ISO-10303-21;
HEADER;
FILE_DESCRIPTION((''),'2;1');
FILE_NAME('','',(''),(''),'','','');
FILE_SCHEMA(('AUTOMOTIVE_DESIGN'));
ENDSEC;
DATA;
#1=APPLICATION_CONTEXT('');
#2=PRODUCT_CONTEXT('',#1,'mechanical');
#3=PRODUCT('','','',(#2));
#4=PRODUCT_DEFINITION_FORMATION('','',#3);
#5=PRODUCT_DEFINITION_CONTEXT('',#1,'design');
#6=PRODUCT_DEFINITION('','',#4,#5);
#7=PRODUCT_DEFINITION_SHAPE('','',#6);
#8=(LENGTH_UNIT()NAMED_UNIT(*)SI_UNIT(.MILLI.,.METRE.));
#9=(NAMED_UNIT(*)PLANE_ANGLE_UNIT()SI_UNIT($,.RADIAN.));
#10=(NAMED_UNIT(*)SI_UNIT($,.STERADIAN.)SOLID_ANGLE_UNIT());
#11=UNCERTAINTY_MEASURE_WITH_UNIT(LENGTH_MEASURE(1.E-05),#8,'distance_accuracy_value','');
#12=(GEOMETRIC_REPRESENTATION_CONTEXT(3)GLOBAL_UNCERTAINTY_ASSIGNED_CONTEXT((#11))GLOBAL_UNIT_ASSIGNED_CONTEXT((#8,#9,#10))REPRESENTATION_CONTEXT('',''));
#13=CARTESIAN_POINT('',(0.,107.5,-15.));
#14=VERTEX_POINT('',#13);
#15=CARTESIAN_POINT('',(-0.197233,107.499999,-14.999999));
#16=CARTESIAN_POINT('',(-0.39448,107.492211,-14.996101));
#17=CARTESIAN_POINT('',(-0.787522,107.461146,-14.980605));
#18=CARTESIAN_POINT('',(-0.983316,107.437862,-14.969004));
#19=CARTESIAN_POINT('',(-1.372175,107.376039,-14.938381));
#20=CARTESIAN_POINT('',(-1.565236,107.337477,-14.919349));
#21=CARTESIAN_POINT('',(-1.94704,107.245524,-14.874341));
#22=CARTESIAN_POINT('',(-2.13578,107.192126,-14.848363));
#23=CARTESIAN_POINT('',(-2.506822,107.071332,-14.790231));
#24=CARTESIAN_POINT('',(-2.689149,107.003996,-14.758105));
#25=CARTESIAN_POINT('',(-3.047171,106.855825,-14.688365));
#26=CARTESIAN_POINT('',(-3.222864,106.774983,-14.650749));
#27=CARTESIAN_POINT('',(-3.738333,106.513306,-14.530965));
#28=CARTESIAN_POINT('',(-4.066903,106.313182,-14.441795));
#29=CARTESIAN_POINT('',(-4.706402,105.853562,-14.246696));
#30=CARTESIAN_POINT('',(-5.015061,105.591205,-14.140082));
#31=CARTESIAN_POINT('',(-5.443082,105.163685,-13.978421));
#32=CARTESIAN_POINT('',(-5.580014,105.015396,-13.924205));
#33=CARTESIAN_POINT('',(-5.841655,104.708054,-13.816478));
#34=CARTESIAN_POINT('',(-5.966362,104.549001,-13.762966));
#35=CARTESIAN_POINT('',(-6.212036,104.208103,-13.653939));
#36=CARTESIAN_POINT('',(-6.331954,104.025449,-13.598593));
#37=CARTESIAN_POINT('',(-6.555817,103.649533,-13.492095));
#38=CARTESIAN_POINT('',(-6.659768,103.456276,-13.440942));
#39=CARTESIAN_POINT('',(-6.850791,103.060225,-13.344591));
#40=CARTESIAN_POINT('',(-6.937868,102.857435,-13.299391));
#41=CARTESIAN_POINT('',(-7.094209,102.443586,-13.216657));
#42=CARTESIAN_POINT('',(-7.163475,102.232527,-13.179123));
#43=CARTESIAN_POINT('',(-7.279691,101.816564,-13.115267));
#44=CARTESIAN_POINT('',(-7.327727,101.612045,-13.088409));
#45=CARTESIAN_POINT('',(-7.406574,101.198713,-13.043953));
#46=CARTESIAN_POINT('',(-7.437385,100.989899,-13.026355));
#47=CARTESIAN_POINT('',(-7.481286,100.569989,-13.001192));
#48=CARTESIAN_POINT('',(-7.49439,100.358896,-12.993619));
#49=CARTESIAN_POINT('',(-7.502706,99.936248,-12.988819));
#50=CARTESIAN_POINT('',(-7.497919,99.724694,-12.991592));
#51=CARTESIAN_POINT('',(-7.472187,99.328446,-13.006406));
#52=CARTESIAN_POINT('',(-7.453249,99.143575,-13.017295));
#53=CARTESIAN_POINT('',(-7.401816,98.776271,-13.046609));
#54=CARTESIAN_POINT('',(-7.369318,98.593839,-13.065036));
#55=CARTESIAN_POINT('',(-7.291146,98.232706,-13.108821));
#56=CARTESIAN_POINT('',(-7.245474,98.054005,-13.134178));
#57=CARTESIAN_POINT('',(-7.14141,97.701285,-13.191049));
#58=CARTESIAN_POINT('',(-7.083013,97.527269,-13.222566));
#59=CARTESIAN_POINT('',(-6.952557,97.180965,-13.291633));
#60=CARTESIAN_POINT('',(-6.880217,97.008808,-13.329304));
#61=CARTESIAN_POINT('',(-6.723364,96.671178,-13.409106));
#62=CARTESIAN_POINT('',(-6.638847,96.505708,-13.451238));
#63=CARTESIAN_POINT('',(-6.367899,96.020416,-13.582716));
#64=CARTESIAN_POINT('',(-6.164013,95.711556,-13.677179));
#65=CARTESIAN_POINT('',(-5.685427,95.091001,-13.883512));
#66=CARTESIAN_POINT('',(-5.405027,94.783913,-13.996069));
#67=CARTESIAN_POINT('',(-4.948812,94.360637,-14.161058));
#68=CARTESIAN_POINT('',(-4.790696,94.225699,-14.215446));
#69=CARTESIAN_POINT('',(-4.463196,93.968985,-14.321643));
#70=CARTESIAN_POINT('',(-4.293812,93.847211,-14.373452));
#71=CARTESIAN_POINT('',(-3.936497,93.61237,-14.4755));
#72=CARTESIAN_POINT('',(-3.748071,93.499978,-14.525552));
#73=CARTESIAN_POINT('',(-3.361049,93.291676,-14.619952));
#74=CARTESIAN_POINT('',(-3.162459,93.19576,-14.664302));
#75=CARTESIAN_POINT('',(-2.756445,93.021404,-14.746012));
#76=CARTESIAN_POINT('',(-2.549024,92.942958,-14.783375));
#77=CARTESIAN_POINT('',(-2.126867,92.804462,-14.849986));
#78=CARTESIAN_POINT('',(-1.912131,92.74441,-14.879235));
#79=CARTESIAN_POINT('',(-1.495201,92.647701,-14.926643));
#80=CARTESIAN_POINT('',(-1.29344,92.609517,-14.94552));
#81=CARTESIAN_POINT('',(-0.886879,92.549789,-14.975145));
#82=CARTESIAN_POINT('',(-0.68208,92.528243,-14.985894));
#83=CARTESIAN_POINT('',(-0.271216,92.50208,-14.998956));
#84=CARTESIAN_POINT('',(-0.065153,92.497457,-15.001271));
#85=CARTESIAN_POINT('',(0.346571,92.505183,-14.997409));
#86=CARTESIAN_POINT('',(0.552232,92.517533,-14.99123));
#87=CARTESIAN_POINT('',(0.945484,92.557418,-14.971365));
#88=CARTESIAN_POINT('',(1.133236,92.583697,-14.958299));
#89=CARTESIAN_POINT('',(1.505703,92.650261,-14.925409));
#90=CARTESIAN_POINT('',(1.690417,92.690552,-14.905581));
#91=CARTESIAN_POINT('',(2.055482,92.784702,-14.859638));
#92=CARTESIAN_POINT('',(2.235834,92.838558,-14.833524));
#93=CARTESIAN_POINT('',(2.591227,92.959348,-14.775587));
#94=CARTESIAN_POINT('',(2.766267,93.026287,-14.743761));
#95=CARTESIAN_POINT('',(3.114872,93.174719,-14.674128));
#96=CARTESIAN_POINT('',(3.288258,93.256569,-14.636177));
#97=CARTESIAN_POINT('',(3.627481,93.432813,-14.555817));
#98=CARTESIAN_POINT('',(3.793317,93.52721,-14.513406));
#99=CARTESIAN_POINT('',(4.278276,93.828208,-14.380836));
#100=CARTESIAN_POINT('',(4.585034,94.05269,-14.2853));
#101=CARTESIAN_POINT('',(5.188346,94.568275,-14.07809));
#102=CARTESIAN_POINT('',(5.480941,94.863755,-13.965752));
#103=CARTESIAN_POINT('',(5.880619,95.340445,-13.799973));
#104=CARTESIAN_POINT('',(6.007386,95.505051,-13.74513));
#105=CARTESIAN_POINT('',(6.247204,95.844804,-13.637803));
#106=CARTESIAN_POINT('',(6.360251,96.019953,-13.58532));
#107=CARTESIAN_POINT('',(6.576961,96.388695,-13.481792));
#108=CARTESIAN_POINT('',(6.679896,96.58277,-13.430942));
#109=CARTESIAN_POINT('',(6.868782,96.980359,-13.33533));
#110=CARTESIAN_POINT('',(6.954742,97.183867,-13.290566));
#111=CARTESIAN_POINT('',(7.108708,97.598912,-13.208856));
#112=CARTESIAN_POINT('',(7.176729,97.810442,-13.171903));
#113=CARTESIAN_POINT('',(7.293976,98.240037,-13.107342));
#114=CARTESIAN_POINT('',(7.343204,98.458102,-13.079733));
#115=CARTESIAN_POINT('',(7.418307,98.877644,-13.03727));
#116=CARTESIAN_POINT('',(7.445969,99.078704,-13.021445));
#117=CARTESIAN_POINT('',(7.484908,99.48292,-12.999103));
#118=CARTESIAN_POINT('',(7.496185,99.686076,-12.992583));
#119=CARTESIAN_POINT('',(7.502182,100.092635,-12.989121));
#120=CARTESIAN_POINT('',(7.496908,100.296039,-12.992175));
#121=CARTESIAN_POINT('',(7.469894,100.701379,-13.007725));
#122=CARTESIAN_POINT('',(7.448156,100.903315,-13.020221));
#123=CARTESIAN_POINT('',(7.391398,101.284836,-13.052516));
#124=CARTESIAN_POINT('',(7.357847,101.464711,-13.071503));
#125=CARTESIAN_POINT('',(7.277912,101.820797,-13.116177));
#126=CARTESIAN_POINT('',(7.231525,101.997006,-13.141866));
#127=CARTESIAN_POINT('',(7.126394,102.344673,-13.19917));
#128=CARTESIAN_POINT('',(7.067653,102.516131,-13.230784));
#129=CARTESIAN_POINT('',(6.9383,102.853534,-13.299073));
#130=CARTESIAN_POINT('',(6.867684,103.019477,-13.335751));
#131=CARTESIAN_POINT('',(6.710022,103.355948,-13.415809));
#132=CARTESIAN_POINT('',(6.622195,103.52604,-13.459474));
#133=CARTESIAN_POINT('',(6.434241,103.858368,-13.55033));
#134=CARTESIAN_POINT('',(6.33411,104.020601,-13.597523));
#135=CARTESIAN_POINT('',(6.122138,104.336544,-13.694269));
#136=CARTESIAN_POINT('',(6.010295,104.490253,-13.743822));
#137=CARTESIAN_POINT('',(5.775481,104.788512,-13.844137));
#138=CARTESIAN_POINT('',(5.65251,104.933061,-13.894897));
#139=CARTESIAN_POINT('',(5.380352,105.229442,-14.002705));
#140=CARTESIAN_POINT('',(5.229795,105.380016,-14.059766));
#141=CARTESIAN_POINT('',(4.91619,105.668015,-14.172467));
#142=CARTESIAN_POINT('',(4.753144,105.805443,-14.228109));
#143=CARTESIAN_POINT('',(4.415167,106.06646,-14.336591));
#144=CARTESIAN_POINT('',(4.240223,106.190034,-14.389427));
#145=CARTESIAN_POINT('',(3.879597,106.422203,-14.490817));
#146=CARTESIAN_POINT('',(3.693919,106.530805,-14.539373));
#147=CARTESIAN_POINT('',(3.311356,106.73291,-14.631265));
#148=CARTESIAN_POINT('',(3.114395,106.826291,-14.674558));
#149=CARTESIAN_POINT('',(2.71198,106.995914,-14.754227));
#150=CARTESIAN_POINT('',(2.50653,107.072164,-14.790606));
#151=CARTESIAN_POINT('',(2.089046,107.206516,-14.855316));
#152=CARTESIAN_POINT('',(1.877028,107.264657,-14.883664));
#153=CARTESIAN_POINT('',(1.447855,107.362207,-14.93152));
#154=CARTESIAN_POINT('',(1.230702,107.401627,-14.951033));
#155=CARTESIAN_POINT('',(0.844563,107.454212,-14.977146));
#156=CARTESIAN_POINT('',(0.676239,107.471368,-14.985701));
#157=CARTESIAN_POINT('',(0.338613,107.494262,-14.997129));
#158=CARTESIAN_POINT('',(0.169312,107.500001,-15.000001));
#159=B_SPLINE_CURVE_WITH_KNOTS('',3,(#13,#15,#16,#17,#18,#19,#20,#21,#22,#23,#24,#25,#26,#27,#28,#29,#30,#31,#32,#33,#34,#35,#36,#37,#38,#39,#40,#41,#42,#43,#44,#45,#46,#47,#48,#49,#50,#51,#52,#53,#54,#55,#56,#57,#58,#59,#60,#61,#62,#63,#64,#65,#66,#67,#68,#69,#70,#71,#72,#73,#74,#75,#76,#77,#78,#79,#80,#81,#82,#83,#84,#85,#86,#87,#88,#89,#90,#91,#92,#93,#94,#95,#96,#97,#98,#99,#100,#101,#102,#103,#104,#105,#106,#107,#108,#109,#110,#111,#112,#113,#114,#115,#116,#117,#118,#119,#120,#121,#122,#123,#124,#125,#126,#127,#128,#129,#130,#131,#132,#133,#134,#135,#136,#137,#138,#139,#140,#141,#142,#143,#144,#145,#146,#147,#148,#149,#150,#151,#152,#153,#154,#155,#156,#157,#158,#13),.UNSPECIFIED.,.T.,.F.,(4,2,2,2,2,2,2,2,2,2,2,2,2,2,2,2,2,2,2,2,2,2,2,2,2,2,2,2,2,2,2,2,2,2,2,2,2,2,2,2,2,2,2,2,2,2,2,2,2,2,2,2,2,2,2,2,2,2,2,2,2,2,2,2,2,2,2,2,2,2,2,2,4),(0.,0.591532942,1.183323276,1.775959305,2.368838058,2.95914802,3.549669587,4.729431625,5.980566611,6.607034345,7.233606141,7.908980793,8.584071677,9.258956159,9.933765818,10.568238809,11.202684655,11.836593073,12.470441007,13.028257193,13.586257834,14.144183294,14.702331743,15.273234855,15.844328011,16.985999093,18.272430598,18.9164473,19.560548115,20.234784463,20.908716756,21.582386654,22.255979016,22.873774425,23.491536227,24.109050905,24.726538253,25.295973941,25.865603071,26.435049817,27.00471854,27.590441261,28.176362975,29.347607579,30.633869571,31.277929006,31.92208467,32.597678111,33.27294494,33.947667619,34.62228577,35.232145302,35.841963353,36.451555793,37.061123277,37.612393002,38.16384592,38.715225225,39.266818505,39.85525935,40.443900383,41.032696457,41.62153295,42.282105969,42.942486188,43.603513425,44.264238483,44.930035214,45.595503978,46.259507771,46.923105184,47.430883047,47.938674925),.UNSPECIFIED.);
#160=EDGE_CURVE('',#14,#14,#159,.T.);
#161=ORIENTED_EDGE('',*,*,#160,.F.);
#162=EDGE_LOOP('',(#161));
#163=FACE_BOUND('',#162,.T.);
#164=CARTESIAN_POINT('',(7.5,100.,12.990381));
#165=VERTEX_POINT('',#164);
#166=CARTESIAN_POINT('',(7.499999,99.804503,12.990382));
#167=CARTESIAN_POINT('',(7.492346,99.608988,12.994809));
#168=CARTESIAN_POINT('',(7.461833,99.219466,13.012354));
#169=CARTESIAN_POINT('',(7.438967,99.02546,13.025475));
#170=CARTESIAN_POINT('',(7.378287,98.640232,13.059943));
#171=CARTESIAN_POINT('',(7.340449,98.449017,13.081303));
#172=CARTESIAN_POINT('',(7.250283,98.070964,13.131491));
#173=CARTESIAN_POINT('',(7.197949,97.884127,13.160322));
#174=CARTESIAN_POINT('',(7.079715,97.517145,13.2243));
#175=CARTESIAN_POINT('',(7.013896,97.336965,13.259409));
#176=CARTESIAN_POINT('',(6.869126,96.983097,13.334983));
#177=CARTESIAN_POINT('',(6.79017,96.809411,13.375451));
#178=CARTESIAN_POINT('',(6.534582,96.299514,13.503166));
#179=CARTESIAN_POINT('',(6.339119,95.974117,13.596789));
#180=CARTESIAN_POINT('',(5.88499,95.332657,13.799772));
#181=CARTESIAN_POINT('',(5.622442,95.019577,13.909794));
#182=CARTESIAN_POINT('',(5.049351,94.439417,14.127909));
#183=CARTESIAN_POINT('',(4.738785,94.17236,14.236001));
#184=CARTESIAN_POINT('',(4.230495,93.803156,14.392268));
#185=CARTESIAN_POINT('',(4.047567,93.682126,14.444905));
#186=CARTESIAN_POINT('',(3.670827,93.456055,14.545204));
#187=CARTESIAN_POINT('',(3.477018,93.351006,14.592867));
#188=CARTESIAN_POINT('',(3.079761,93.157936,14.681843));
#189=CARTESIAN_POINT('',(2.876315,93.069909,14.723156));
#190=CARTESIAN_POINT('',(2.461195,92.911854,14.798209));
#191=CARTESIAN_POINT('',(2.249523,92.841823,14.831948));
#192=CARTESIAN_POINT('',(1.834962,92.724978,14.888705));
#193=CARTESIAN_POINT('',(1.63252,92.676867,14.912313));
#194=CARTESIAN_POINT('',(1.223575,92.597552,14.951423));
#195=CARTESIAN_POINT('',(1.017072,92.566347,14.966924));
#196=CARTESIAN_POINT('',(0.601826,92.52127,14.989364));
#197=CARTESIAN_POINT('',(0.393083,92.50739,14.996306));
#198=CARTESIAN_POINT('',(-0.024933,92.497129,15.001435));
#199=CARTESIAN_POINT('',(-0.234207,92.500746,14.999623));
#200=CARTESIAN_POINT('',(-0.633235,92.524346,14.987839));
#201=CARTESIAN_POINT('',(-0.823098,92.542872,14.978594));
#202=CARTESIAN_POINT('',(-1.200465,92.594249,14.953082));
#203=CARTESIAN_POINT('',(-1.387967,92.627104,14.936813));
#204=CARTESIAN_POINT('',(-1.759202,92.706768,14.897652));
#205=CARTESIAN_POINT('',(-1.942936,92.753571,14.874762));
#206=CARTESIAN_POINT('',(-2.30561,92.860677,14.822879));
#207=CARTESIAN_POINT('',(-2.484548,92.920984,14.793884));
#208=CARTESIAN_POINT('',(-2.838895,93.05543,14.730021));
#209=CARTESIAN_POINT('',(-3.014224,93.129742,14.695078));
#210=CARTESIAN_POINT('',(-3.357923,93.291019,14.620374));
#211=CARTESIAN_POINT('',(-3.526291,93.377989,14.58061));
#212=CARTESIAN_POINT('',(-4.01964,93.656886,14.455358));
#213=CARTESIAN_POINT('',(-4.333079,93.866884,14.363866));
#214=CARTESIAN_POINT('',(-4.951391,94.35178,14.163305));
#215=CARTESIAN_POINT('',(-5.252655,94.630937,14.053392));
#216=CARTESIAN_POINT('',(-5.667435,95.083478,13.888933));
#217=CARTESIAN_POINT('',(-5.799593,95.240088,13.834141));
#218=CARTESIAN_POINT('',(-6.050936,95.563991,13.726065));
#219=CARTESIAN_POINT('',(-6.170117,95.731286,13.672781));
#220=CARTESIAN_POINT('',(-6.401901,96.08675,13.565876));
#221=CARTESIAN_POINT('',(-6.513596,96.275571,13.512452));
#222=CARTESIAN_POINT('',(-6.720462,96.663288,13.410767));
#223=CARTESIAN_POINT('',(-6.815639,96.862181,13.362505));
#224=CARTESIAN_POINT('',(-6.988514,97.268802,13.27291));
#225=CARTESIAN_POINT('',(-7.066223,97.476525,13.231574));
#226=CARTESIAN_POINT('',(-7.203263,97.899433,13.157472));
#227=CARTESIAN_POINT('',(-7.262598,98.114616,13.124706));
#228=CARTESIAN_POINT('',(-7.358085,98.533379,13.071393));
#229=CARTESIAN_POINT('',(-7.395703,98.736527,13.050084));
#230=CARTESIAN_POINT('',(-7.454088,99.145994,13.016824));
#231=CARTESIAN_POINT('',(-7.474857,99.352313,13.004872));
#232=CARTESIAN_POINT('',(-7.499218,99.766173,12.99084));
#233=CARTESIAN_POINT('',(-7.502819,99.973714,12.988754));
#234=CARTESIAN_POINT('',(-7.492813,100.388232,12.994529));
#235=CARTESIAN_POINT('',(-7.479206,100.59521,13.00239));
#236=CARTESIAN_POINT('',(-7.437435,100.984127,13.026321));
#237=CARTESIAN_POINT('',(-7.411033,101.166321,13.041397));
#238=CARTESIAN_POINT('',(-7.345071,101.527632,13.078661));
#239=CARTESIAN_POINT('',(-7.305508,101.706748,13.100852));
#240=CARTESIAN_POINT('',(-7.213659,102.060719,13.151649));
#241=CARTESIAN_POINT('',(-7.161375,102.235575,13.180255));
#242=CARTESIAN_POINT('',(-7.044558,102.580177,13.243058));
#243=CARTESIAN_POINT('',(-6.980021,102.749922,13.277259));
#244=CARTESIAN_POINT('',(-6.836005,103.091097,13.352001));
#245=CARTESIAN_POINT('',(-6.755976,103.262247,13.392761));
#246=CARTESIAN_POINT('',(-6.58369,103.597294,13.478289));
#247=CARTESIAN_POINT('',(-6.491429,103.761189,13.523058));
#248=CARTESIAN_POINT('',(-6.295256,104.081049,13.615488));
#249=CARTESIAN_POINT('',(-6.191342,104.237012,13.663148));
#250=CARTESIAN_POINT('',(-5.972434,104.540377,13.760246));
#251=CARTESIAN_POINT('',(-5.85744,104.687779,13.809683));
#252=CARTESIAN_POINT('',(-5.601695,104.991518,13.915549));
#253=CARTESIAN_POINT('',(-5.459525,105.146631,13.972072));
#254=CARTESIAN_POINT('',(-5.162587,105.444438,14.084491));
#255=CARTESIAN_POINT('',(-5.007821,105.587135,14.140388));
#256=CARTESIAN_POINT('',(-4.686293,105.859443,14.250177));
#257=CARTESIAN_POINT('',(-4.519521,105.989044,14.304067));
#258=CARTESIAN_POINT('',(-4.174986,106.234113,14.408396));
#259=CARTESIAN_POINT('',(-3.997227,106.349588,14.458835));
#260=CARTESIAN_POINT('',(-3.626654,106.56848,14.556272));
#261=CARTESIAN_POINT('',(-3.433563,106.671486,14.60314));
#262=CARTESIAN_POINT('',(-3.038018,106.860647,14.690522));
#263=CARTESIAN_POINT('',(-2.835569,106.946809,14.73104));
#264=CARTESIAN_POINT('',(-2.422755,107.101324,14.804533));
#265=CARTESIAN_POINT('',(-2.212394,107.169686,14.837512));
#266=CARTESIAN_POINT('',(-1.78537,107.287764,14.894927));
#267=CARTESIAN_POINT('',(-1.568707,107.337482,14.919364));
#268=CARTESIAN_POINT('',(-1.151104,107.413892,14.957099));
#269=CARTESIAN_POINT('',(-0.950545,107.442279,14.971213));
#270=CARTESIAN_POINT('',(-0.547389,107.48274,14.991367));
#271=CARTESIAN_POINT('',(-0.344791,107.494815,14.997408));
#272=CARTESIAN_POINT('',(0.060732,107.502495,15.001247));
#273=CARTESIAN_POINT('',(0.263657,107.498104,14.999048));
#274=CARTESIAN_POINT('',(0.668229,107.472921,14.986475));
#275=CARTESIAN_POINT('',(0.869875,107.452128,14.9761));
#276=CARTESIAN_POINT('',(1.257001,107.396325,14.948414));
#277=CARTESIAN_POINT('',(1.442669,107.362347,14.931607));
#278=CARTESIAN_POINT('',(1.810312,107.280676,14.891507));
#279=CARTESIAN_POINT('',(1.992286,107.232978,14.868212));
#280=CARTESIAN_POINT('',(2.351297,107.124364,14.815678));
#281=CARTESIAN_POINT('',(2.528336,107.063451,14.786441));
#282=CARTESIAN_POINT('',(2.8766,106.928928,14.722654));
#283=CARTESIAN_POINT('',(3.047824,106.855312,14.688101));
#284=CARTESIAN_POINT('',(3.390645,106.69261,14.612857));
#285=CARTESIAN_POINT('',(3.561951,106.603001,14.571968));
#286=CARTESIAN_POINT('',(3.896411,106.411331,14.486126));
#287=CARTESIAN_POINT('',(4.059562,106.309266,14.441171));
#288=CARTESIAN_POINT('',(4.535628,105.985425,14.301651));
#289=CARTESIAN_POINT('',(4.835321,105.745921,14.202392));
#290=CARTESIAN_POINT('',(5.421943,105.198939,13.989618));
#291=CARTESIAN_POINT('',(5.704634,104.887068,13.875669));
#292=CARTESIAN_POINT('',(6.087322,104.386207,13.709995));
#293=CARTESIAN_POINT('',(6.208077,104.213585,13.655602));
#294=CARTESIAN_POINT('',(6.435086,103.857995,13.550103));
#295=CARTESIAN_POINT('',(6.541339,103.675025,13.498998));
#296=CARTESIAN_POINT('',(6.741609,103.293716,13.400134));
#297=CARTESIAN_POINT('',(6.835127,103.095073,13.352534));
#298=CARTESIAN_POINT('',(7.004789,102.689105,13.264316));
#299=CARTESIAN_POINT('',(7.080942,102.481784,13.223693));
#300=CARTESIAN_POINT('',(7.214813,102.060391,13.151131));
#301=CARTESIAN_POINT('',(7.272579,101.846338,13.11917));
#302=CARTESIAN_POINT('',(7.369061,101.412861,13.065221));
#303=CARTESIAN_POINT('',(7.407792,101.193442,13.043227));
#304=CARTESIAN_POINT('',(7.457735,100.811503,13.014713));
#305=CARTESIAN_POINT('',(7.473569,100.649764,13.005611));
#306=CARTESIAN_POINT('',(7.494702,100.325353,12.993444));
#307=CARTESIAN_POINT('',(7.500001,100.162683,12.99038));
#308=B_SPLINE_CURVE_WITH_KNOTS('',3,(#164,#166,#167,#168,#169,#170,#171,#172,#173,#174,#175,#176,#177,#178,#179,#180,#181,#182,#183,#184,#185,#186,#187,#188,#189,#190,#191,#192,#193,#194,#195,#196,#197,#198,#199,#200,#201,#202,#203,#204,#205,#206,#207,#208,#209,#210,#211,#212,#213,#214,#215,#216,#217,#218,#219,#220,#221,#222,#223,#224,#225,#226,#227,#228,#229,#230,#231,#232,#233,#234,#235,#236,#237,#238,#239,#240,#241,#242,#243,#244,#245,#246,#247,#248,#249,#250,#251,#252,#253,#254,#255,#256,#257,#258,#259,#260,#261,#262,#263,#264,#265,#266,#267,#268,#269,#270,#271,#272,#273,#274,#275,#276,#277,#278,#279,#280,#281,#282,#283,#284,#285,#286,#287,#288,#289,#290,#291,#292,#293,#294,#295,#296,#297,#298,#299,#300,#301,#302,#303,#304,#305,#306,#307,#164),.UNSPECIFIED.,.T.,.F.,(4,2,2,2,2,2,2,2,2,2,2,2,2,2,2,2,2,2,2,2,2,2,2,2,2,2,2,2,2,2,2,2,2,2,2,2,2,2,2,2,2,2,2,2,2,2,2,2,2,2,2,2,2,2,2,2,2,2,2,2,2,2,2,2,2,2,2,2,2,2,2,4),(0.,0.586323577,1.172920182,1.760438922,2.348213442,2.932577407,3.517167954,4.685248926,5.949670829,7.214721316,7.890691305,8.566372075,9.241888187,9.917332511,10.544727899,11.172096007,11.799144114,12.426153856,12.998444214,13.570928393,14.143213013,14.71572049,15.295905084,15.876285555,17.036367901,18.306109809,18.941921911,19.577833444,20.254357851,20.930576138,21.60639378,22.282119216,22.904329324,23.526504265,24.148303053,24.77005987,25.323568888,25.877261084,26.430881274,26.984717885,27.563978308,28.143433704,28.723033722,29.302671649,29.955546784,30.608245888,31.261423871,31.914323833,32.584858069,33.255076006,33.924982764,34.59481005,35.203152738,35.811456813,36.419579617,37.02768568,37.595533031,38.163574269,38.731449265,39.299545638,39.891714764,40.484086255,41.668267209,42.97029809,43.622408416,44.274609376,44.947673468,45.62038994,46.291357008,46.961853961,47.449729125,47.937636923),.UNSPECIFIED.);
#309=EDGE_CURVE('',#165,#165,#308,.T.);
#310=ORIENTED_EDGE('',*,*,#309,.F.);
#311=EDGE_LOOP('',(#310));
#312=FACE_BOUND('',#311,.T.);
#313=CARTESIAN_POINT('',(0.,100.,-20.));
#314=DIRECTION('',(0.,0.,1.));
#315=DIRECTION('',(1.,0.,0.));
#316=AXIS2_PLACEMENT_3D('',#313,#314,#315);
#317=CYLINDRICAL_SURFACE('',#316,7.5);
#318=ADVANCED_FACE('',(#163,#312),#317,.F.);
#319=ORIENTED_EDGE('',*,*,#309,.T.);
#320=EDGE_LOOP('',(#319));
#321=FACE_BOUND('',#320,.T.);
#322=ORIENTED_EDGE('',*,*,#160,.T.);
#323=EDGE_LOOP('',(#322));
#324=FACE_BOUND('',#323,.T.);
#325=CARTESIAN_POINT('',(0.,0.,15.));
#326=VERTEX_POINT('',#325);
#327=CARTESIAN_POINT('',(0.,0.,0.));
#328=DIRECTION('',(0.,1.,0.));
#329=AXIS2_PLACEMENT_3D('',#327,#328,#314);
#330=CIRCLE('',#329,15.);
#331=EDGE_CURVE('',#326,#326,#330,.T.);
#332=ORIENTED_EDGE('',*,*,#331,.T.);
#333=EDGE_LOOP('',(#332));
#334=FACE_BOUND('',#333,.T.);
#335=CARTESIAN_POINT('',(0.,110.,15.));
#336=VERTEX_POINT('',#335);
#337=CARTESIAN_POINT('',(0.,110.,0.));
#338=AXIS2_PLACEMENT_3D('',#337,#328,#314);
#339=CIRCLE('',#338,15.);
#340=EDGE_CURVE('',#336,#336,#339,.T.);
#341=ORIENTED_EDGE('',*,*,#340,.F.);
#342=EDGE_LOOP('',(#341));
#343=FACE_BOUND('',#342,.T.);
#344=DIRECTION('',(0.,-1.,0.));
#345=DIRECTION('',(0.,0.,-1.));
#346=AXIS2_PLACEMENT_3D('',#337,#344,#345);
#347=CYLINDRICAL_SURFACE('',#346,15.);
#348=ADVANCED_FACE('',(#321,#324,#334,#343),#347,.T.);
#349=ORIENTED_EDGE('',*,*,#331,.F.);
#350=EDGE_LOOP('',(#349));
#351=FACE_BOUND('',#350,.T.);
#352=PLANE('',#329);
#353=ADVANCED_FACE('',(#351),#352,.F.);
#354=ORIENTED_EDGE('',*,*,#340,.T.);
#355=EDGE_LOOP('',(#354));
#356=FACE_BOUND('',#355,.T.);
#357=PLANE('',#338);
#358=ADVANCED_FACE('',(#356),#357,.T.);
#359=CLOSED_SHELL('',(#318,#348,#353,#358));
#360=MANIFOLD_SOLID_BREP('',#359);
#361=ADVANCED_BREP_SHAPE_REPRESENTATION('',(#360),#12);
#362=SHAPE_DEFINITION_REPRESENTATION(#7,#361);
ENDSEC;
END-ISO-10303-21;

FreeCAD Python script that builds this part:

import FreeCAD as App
import Part
import Sketcher

doc = App.newDocument("Part")
body = doc.addObject("PartDesign::Body", "Body")

sketch1 = body.newObject("Sketcher::SketchObject", "Sketch")
sketch1.AttachmentSupport = (doc.getObject("XZ_Plane"), [""])
sketch1.MapMode = "FlatFace"
sketch1.addGeometry(Part.Circle(App.Vector(0, 0, 0), App.Vector(0, 0, 1), 15), False)
sketch1.addConstraint([
    Sketcher.Constraint("Coincident", 0, 3, -1, 1),
    Sketcher.Constraint("Diameter", 0, 30.0),
])
pad1 = body.newObject("PartDesign::Pad", "Pad")
pad1.Profile = sketch1
pad1.Length = 110
pad1.Reversed = True

sketch2 = body.newObject("Sketcher::SketchObject", "Sketch001")
sketch2.AttachmentSupport = (doc.getObject("XY_Plane"), [""])
sketch2.MapMode = "FlatFace"
sketch2.AttachmentOffset = App.Placement(App.Vector(0, 0, 20), App.Rotation())
sketch2.addGeometry(Part.Circle(App.Vector(0, 100, 0), App.Vector(0, 0, 1), 8), False)
sketch2.addConstraint([
    Sketcher.Constraint("PointOnObject", 0, 3, -2),
    Sketcher.Constraint("Diameter", 0, 15.0),
    Sketcher.Constraint("DistanceY", -1, 1, 0, 3, 100.0),
])
pocket1 = body.newObject("PartDesign::Pocket", "Pocket")
pocket1.Profile = sketch2
pocket1.Length = 40

doc.recompute()
